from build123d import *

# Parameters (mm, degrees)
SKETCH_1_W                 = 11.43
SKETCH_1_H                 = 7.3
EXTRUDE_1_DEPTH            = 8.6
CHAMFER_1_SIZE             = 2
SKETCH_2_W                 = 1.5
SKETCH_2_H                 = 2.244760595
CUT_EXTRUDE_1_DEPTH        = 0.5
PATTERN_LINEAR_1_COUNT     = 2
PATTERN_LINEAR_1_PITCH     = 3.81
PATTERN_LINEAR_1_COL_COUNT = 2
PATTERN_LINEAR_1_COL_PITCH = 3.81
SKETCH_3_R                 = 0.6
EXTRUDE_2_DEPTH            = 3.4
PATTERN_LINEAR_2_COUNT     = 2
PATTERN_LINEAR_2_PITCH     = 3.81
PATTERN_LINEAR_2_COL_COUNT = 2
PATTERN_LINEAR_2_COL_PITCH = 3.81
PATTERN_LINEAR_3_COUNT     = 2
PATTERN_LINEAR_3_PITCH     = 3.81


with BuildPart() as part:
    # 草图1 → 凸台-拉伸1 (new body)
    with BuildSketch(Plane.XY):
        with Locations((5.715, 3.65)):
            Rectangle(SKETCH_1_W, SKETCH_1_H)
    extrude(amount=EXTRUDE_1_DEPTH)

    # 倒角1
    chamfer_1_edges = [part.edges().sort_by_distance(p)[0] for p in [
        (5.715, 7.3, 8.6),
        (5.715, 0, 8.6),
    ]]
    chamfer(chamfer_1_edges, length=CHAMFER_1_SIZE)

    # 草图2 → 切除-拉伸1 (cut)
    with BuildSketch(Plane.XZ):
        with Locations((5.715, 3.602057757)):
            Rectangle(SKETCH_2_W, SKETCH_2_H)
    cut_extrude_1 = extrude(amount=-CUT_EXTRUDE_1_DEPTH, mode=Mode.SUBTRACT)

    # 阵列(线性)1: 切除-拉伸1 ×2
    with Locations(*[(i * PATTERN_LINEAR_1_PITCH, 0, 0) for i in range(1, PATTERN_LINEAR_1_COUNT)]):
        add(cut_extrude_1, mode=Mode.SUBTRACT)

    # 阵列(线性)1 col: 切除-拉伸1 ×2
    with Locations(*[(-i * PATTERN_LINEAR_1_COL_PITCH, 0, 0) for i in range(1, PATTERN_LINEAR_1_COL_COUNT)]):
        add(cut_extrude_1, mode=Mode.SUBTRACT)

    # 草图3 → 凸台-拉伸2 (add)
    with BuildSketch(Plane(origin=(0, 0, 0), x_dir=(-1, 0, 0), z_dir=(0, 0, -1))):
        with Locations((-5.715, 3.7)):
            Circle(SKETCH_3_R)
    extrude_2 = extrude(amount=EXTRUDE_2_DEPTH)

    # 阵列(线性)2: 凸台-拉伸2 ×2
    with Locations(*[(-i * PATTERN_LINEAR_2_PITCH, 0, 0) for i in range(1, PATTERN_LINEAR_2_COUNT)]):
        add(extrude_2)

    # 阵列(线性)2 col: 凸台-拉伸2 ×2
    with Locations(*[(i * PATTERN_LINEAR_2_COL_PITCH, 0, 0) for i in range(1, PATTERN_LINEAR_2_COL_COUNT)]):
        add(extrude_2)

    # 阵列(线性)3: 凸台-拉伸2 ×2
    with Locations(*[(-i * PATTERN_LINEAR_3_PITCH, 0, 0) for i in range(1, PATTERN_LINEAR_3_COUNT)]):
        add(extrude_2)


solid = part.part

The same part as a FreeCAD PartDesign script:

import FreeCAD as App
import Part
import Sketcher

V = App.Vector


def edges_at(feature, points):
    """Names of the edges that pass closest to the given points."""
    edges = feature.Shape.Edges
    near = lambda p: min(range(len(edges)), key=lambda i: edges[i].distToShape(Part.Vertex(*p))[0])
    return sorted({f"Edge{near(p) + 1}" for p in points})

doc = App.newDocument("Part")
body = doc.addObject("PartDesign::Body", "Body")

# Sketch on XY plane
sketch1 = body.newObject("Sketcher::SketchObject", "Sketch")
sketch1.AttachmentSupport = (doc.getObject("XY_Plane"), [""])
sketch1.MapMode = "FlatFace"
sketch1.addGeometry([
    Part.LineSegment(V(0, 7.3, 0), V(0, 0, 0)),
    Part.LineSegment(V(0, 0, 0), V(11.43, 0, 0)),
    Part.LineSegment(V(11.43, 0, 0), V(11.43, 7.3, 0)),
    Part.LineSegment(V(11.43, 7.3, 0), V(0, 7.3, 0)),
], False)
sketch1.addConstraint([
    Sketcher.Constraint("Coincident", 0, 2, 1, 1),
    Sketcher.Constraint("Coincident", 1, 2, 2, 1),
    Sketcher.Constraint("Coincident", 2, 2, 3, 1),
    Sketcher.Constraint("Coincident", 3, 2, 0, 1),
    Sketcher.Constraint("Vertical", 0),
    Sketcher.Constraint("Horizontal", 1),
    Sketcher.Constraint("Vertical", 2),
    Sketcher.Constraint("Horizontal", 3),
    Sketcher.Constraint("Coincident", 0, 2, -1, 1),
    Sketcher.Constraint("DistanceY", 0, 2, 0, 1, 7.3),
    Sketcher.Constraint("DistanceX", 1, 1, 1, 2, 11.43),
])
pad1 = body.newObject("PartDesign::Pad", "Pad")
pad1.Profile = sketch1
pad1.Length = 8.6
doc.recompute()

chamfer = body.newObject("PartDesign::Chamfer", "Chamfer")
chamfer.Base = (pad1, edges_at(pad1, [(5.715, 7.3, 8.6), (5.715, 0, 8.6)]))
chamfer.Size = 2

# Sketch on XZ plane
sketch2 = body.newObject("Sketcher::SketchObject", "Sketch001")
sketch2.AttachmentSupport = (doc.getObject("XZ_Plane"), [""])
sketch2.MapMode = "FlatFace"
sketch2.addGeometry([
    Part.LineSegment(V(4.965, 4.724438, 0), V(4.965, 2.479677, 0)),
    Part.LineSegment(V(4.965, 2.479677, 0), V(6.465, 2.479677, 0)),
    Part.LineSegment(V(6.465, 2.479677, 0), V(6.465, 4.724438, 0)),
    Part.LineSegment(V(6.465, 4.724438, 0), V(4.965, 4.724438, 0)),
], False)
sketch2.addConstraint([
    Sketcher.Constraint("Coincident", 0, 2, 1, 1),
    Sketcher.Constraint("Coincident", 1, 2, 2, 1),
    Sketcher.Constraint("Coincident", 2, 2, 3, 1),
    Sketcher.Constraint("Coincident", 3, 2, 0, 1),
    Sketcher.Constraint("Vertical", 0),
    Sketcher.Constraint("Horizontal", 1),
    Sketcher.Constraint("Vertical", 2),
    Sketcher.Constraint("Horizontal", 3),
    Sketcher.Constraint("DistanceX", 1, 1, 1, 2, 1.5),
    Sketcher.Constraint("DistanceX", -1, 1, 0, 2, 4.965),
    Sketcher.Constraint("DistanceY", 0, 2, 0, 1, 2.244761),
    Sketcher.Constraint("DistanceY", -1, 1, 2, 2, 4.724438),
])
pocket1 = body.newObject("PartDesign::Pocket", "Pocket")
pocket1.Profile = sketch2
pocket1.Length = 0.5
doc.recompute()

linearpattern = body.newObject("PartDesign::LinearPattern", "LinearPattern")
linearpattern.Originals = [pocket1]
linearpattern.Direction = (doc.getObject("X_Axis"), [""])
linearpattern.Mode = "offset"
linearpattern.Offset = 3.81
linearpattern.Occurrences = 2
body.Tip = linearpattern
doc.recompute()

linearpattern2 = body.newObject("PartDesign::LinearPattern", "LinearPattern001")
linearpattern2.Originals = [pocket1]
linearpattern2.Direction = (doc.getObject("X_Axis"), [""])
linearpattern2.Mode = "offset"
linearpattern2.Offset = 3.81
linearpattern2.Occurrences = 2
linearpattern2.Reversed = True
body.Tip = linearpattern2

# Sketch on XY plane
sketch3 = body.newObject("Sketcher::SketchObject", "Sketch002")
sketch3.AttachmentSupport = (doc.getObject("XY_Plane"), [""])
sketch3.MapMode = "FlatFace"
sketch3.addGeometry(Part.Circle(V(5.715, 3.7, 0), V(0, 0, 1), 0.6), False)
sketch3.addConstraint([
    Sketcher.Constraint("Diameter", 0, 1.2),
    Sketcher.Constraint("DistanceY", -1, 1, 0, 3, 3.7),
    Sketcher.Constraint("DistanceX", -1, 1, 0, 3, 5.715),
])
pad2 = body.newObject("PartDesign::Pad", "Pad001")
pad2.Profile = sketch3
pad2.Length = 3.4
pad2.Reversed = True
doc.recompute()

linearpattern3 = body.newObject("PartDesign::LinearPattern", "LinearPattern002")
linearpattern3.Originals = [pad2]
linearpattern3.Direction = (doc.getObject("X_Axis"), [""])
linearpattern3.Mode = "offset"
linearpattern3.Offset = 3.81
linearpattern3.Occurrences = 2
linearpattern3.Reversed = True
body.Tip = linearpattern3
doc.recompute()

linearpattern4 = body.newObject("PartDesign::LinearPattern", "LinearPattern003")
linearpattern4.Originals = [pad2]
linearpattern4.Direction = (doc.getObject("X_Axis"), [""])
linearpattern4.Mode = "offset"
linearpattern4.Offset = 3.81
linearpattern4.Occurrences = 2
body.Tip = linearpattern4
doc.recompute()

linearpattern5 = body.newObject("PartDesign::LinearPattern", "LinearPattern004")
linearpattern5.Originals = [pad2]
linearpattern5.Direction = (doc.getObject("X_Axis"), [""])
linearpattern5.Mode = "offset"
linearpattern5.Offset = 3.81
linearpattern5.Occurrences = 2
linearpattern5.Reversed = True
body.Tip = linearpattern5

doc.recompute()
